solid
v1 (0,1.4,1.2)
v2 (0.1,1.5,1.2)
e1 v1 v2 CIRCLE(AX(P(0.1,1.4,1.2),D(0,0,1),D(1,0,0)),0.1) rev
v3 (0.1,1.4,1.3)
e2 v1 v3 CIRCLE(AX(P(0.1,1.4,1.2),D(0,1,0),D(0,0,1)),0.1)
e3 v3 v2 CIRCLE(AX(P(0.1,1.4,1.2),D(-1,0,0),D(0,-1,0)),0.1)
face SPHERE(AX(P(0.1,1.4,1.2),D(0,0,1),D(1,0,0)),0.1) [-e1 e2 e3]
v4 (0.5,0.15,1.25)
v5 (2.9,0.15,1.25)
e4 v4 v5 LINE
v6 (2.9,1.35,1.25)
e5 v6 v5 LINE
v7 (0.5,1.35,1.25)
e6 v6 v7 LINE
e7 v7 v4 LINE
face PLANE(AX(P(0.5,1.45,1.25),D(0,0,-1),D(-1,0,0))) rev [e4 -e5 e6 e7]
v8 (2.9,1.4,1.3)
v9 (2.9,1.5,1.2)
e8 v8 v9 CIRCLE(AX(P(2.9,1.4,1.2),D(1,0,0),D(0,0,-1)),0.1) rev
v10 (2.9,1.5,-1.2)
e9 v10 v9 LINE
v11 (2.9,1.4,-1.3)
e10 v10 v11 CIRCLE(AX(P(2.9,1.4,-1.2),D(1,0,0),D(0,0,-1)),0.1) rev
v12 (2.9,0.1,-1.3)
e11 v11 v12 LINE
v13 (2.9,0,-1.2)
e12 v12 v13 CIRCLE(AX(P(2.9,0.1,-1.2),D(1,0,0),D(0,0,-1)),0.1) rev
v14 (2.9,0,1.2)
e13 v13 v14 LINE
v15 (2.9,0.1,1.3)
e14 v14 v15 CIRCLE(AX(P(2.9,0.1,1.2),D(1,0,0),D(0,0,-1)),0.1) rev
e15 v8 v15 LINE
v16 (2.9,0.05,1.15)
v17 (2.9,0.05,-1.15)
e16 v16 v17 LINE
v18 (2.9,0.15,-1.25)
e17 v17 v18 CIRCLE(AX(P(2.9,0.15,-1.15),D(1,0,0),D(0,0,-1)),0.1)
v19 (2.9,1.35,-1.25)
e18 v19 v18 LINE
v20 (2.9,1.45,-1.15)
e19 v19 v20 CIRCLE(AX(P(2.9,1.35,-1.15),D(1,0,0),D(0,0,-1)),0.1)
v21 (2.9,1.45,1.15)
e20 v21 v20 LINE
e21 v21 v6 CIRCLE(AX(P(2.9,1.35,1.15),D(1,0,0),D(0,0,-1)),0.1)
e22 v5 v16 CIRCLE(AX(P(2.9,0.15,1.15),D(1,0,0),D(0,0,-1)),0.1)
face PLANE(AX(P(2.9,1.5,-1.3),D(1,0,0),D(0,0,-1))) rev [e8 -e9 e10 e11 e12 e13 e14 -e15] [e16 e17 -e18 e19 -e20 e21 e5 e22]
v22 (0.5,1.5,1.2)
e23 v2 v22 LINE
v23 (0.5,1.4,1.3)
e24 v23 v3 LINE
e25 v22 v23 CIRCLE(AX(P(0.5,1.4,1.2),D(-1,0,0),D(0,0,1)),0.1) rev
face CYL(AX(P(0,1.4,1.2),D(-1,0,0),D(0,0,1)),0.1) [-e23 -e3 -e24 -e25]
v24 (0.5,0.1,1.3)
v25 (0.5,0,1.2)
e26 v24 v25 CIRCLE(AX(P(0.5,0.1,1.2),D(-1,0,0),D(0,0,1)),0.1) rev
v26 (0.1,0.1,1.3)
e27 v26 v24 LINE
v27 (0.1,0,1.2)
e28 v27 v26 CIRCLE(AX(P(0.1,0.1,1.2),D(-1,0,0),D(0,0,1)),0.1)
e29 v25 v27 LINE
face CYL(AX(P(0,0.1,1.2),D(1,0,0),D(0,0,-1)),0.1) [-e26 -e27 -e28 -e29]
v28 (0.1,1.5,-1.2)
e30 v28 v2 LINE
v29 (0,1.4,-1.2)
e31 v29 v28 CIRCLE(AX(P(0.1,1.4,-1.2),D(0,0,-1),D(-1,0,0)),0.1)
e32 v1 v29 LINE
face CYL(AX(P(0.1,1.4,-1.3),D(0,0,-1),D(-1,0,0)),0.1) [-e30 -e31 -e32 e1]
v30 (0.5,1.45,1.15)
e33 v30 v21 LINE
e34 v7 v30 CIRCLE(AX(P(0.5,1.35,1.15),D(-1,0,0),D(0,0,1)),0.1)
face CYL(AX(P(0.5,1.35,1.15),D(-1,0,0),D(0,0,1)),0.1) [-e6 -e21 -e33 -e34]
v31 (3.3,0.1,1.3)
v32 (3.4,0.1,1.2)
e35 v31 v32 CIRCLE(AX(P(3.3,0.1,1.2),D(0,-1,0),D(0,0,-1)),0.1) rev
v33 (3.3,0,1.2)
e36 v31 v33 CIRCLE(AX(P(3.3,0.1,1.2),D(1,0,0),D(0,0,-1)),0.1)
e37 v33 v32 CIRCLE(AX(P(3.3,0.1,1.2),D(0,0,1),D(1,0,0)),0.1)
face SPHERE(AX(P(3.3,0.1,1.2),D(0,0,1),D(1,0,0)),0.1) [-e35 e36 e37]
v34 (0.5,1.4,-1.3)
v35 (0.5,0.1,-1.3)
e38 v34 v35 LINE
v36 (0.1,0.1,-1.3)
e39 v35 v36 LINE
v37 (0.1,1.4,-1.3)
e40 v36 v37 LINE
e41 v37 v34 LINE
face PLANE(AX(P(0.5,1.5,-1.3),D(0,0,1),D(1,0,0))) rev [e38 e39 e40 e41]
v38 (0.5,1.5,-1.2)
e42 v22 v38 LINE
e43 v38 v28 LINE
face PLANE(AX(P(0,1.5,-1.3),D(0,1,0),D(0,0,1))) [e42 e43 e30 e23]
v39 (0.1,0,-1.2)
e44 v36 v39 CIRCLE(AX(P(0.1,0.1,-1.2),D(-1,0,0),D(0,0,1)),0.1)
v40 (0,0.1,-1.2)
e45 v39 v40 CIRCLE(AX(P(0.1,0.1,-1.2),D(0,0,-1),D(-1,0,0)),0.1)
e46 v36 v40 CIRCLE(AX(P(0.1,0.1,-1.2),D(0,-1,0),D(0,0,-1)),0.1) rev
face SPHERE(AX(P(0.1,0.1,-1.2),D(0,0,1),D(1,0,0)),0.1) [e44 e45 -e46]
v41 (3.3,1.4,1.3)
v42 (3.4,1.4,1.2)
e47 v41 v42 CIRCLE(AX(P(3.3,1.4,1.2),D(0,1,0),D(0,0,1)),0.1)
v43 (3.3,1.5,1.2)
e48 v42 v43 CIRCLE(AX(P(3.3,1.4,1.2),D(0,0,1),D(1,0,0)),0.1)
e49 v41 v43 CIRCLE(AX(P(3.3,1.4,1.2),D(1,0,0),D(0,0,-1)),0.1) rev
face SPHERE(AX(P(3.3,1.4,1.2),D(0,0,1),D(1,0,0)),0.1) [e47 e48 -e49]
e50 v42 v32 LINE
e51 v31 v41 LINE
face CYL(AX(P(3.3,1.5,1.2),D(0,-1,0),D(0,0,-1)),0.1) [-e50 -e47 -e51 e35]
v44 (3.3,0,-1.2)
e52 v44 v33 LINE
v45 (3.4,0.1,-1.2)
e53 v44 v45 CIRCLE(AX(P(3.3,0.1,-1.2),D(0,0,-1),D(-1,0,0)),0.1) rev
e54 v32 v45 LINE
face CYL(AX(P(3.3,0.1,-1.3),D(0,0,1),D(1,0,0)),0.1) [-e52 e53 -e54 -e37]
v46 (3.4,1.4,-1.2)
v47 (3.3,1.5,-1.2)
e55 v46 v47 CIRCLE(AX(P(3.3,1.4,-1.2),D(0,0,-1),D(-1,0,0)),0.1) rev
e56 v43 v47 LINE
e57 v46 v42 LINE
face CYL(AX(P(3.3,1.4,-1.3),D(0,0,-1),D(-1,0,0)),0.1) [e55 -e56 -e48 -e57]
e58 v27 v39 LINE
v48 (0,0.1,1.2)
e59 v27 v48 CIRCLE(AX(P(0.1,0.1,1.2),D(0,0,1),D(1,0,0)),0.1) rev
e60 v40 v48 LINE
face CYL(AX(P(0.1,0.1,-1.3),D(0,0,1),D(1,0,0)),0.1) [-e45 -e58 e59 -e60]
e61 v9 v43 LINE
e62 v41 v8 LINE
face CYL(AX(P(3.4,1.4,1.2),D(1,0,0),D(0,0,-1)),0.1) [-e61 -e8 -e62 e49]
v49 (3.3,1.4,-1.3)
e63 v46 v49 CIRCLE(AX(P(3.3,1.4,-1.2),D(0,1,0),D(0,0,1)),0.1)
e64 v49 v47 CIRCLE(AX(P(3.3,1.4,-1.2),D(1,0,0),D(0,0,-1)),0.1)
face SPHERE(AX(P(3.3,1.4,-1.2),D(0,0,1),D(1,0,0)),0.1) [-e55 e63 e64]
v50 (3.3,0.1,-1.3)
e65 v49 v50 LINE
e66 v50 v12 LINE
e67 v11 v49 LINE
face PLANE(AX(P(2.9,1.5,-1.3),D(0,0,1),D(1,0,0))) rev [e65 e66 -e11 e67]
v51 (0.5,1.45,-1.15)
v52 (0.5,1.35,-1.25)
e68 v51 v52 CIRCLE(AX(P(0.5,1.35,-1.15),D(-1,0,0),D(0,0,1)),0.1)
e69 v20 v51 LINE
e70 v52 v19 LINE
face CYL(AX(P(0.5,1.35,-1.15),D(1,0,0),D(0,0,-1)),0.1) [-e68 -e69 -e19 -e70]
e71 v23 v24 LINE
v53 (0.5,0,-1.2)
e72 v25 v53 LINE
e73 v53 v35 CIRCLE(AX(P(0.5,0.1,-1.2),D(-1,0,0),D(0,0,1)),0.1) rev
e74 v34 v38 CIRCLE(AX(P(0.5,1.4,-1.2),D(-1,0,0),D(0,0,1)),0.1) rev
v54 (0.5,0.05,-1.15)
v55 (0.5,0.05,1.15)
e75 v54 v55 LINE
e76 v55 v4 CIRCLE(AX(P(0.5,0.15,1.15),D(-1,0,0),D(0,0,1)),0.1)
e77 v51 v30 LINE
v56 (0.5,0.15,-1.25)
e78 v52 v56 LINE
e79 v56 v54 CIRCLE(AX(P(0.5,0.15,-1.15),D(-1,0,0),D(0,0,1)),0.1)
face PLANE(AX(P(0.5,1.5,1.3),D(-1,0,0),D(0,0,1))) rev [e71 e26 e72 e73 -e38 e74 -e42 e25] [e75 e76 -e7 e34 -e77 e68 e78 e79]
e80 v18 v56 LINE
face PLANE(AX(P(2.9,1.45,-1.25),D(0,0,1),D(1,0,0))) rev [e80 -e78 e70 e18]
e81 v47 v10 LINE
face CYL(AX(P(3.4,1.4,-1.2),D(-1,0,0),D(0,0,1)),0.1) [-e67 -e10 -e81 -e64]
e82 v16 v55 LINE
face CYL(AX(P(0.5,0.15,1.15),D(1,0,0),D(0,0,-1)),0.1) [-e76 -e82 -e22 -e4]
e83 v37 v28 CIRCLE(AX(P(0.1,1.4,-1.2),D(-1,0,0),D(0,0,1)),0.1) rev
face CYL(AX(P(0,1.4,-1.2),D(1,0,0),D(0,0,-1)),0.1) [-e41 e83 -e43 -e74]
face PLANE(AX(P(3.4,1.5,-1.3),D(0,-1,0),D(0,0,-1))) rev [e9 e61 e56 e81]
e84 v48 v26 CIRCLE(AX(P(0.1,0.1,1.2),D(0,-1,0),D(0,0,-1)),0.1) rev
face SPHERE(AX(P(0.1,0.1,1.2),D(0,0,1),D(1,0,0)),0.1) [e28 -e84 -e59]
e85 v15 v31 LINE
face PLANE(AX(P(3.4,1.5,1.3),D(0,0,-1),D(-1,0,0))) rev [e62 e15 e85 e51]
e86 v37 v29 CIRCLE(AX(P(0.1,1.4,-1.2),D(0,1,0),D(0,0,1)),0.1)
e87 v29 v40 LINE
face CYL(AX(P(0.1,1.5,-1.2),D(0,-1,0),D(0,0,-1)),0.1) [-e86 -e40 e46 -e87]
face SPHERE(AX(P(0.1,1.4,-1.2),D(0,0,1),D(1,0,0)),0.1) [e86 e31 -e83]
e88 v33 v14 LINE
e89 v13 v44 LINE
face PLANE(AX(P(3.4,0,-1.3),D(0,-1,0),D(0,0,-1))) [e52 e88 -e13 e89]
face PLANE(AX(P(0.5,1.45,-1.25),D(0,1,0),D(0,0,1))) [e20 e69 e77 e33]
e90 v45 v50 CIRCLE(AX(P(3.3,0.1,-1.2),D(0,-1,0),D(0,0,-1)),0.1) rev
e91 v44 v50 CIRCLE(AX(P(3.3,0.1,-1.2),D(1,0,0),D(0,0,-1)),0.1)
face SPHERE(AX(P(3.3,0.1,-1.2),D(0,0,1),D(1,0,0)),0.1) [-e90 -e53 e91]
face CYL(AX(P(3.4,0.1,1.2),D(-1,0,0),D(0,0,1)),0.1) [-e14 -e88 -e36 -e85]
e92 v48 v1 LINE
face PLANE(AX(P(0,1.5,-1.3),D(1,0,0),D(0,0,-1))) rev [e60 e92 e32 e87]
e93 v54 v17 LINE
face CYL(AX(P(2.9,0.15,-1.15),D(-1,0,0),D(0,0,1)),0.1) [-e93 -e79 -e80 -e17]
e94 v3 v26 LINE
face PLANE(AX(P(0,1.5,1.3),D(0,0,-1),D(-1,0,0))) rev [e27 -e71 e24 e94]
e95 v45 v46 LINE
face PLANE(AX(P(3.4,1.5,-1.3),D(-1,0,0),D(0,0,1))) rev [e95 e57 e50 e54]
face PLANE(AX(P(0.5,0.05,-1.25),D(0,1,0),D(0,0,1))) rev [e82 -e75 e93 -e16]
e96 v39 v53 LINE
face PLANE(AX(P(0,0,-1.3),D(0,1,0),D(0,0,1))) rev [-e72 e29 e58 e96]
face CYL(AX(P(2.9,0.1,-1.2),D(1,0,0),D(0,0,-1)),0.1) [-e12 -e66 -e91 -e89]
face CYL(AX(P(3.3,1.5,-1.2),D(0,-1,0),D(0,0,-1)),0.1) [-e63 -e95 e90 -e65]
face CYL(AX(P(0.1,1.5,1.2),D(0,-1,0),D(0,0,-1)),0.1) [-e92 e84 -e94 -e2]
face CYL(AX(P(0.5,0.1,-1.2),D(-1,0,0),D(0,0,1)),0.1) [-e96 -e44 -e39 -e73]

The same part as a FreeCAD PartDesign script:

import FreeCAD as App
import Part
import Sketcher


def edges_at(feature, points):
    """Names of the edges that pass closest to the given points."""
    edges = feature.Shape.Edges
    near = lambda p: min(range(len(edges)), key=lambda i: edges[i].distToShape(Part.Vertex(*p))[0])
    return sorted({f"Edge{near(p) + 1}" for p in points})


def add_polygon(sketch, points):
    """Adds a closed chain of lines whose ends are joined by coincident constraints."""
    first, n = sketch.GeometryCount, len(points)
    for a, b in zip(points, points[1:] + points[:1]):
        sketch.addGeometry(Part.LineSegment(App.Vector(*a, 0), App.Vector(*b, 0)), False)
    for i in range(n):
        sketch.addConstraint(Sketcher.Constraint("Coincident", first + i, 2, first + (i + 1) % n, 1))

doc = App.newDocument("Part")
body = doc.addObject("PartDesign::Body", "Body")

sketch1 = body.newObject("Sketcher::SketchObject", "Sketch")
sketch1.AttachmentSupport = (doc.getObject("XZ_Plane"), [""])
sketch1.MapMode = "FlatFace"
add_polygon(sketch1, [(0, -1.3), (0, 1.3), (0.5, 1.3), (0.5, -1.3)])
sketch1.addConstraint([
    Sketcher.Constraint("Vertical", 0),
    Sketcher.Constraint("Horizontal", 1),
    Sketcher.Constraint("Vertical", 2),
    Sketcher.Constraint("Horizontal", 3),
    Sketcher.Constraint("Symmetric", 0, 2, 3, 2, -1, 1),
    Sketcher.Constraint("DistanceX", 1, 1, 1, 2, 0.5),
    Sketcher.Constraint("DistanceY", 0, 1, 0, 2, 2.6),
])
pad1 = body.newObject("PartDesign::Pad", "Pad")
pad1.Profile = sketch1
pad1.Length = 1.5
pad1.Reversed = True
body2 = doc.addObject("PartDesign::Body", "Body001")

sketch2 = body2.newObject("Sketcher::SketchObject", "Sketch001")
sketch2.AttachmentSupport = (doc.getObject("XZ_Plane001"), [""])
sketch2.MapMode = "FlatFace"
add_polygon(sketch2, [(2.9, -1.3), (2.9, 1.3), (3.4, 1.3), (3.4, -1.3)])
sketch2.addConstraint([
    Sketcher.Constraint("Vertical", 0),
    Sketcher.Constraint("Horizontal", 1),
    Sketcher.Constraint("Vertical", 2),
    Sketcher.Constraint("Horizontal", 3),
    Sketcher.Constraint("DistanceX", 1, 1, 1, 2, 0.5),
    Sketcher.Constraint("DistanceY", 0, 1, 0, 2, 2.6),
    Sketcher.Constraint("DistanceX", -1, 1, 0, 2, 2.9),
    Sketcher.Constraint("DistanceY", -1, 1, 0, 2, 1.3),
])
pad2 = body2.newObject("PartDesign::Pad", "Pad001")
pad2.Profile = sketch2
pad2.Length = 1.5
pad2.Reversed = True
body.AllowCompound = True
doc.recompute()

boolean = body.newObject("PartDesign::Boolean", "Boolean")
boolean.Type = "Fuse"
boolean.addObjects([body2])

sketch3 = body.newObject("Sketcher::SketchObject", "Sketch002")
sketch3.AttachmentSupport = (doc.getObject("XZ_Plane"), [""])
sketch3.MapMode = "FlatFace"
sketch3.AttachmentOffset = App.Placement(App.Vector(0, 0, -0.05), App.Rotation())
add_polygon(sketch3, [(0.5, -1.25), (0.5, 1.25), (2.9, 1.25), (2.9, -1.25)])
sketch3.addConstraint([
    Sketcher.Constraint("Vertical", 0),
    Sketcher.Constraint("Horizontal", 1),
    Sketcher.Constraint("Vertical", 2),
    Sketcher.Constraint("Horizontal", 3),
    Sketcher.Constraint("DistanceX", 1, 1, 1, 2, 2.4),
    Sketcher.Constraint("DistanceY", 0, 1, 0, 2, 2.5),
    Sketcher.Constraint("DistanceX", -1, 1, 0, 2, 0.5),
    Sketcher.Constraint("DistanceY", -1, 1, 0, 2, 1.25),
])
pad3 = body.newObject("PartDesign::Pad", "Pad002")
pad3.Profile = sketch3
pad3.Length = 1.4
pad3.Reversed = True
doc.recompute()

fillet = body.newObject("PartDesign::Fillet", "Fillet")
fillet.Base = (pad3, edges_at(pad3, [
    (0.25, 1.5, 1.3),
    (1.7, 0.05, -1.25),
    (1.7, 0.05, 1.25),
    (1.7, 1.45, -1.25),
    (1.7, 1.45, 1.25),
    (3.15, 0, -1.3),
    (3.4, 0.75, -1.3),
    (3.15, 0, 1.3),
    (3.4, 0, 0),
    (3.4, 0.75, 1.3),
    (3.15, 1.5, -1.3),
    (3.15, 1.5, 1.3),
    (3.4, 1.5, 0),
    (0.25, 1.5, -1.3),
    (0.25, 0, 1.3),
    (0, 0, 0),
    (0.25, 0, -1.3),
    (0, 1.5, 0),
    (0, 0.75, 1.3),
    (0, 0.75, -1.3),
]))
fillet.Radius = 0.1

doc.recompute()
